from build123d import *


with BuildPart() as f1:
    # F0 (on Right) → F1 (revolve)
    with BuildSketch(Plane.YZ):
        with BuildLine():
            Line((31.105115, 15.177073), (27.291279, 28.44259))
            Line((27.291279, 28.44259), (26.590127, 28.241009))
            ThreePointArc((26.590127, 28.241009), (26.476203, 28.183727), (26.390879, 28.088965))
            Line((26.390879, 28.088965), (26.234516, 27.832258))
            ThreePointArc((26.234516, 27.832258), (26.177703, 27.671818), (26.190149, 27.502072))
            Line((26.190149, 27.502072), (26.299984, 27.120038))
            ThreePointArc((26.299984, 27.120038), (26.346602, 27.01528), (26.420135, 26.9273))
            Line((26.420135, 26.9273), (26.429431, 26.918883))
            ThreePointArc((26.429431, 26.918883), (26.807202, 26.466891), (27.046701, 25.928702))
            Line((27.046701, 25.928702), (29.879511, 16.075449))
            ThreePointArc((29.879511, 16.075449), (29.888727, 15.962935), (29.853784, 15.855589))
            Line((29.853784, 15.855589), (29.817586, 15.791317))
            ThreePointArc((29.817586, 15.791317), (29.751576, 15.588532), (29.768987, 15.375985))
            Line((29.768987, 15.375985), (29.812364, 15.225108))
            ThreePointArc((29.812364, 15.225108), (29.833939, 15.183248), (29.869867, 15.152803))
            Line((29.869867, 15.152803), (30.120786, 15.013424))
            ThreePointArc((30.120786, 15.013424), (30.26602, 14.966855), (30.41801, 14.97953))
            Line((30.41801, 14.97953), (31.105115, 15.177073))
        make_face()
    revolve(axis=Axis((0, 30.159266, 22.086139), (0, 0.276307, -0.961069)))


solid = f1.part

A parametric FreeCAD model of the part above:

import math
import FreeCAD as App
import Part
import Sketcher

V = App.Vector

doc = App.newDocument("Part")
body = doc.addObject("PartDesign::Body", "Body")

sketch1 = body.newObject("Sketcher::SketchObject", "Sketch")
sketch1.AttachmentSupport = (doc.getObject("YZ_Plane"), [""])
sketch1.MapMode = "FlatFace"
sketch1.addGeometry(Part.LineSegment(V(31.105115, 15.177073, 0), V(27.291279, 28.44259, 0)), False)
sketch1.addGeometry(Part.LineSegment(V(27.291279, 28.44259, 0), V(26.590127, 28.241009, 0)), False)
sketch1.addGeometry(Part.ArcOfCircle(Part.Circle(V(26.685425, 27.909549, 0), V(0, 0, 1), 0.344888), math.radians(106.040489), math.radians(148.653235)), False)
sketch1.addGeometry(Part.LineSegment(V(26.390879, 28.088965, 0), V(26.234516, 27.832258, 0)), False)
sketch1.addGeometry(Part.ArcOfCircle(Part.Circle(V(26.588551, 27.616613, 0), V(0, 0, 1), 0.41454), math.radians(148.654089), math.radians(196.039953)), False)
sketch1.addGeometry(Part.LineSegment(V(26.190149, 27.502072, 0), V(26.299984, 27.120038, 0)), False)
sketch1.addGeometry(Part.ArcOfCircle(Part.Circle(V(26.698383, 27.234576, 0), V(0, 0, 1), 0.414536), math.radians(-163.960223), math.radians(-132.16175)), False)
sketch1.addGeometry(Part.LineSegment(V(26.420135, 26.9273, 0), V(26.429431, 26.918883, 0)), False)
sketch1.addGeometry(Part.ArcOfCircle(Part.Circle(V(24.999932, 25.340255, 0), V(0, 0, 1), 2.129679), math.radians(16.039959), math.radians(47.838132)), False)
sketch1.addGeometry(Part.LineSegment(V(27.046701, 25.928702, 0), V(29.879511, 16.075449, 0)), False)
sketch1.addGeometry(Part.ArcOfCircle(Part.Circle(V(29.604027, 15.99625, 0), V(0, 0, 1), 0.286643), math.radians(-29.387743), math.radians(16.039472)), False)
sketch1.addGeometry(Part.LineSegment(V(29.853784, 15.855589, 0), V(29.817586, 15.791317, 0)), False)
sketch1.addGeometry(Part.ArcOfCircle(Part.Circle(V(30.289389, 15.525601, 0), V(0, 0, 1), 0.541482), math.radians(150.612088), math.radians(196.039975)), False)
sketch1.addGeometry(Part.LineSegment(V(29.768987, 15.375985, 0), V(29.812364, 15.225108, 0)), False)
sketch1.addGeometry(Part.ArcOfCircle(Part.Circle(V(29.928588, 15.258521, 0), V(0, 0, 1), 0.120931), math.radians(-163.960791), math.radians(-119.049881)), False)
sketch1.addGeometry(Part.LineSegment(V(29.869867, 15.152803, 0), V(30.120786, 15.013424, 0)), False)
sketch1.addGeometry(Part.ArcOfCircle(Part.Circle(V(30.31022, 15.354455, 0), V(0, 0, 1), 0.390112), math.radians(-119.051054), math.radians(-73.960213)), False)
sketch1.addGeometry(Part.LineSegment(V(30.41801, 14.97953, 0), V(31.105115, 15.177073, 0)), False)
sketch1.addGeometry(Part.LineSegment(V(28.25235, 28.718898, 0), V(32.066182, 15.453379, 0)), True)
sketch1.addConstraint(Sketcher.Constraint("Coincident", 0, 2, 1, 1))
sketch1.addConstraint(Sketcher.Constraint("Coincident", 1, 2, 2, 1))
sketch1.addConstraint(Sketcher.Constraint("Coincident", 2, 2, 3, 1))
sketch1.addConstraint(Sketcher.Constraint("Coincident", 3, 2, 4, 1))
sketch1.addConstraint(Sketcher.Constraint("Coincident", 4, 2, 5, 1))
sketch1.addConstraint(Sketcher.Constraint("Coincident", 5, 2, 6, 1))
sketch1.addConstraint(Sketcher.Constraint("Coincident", 6, 2, 7, 1))
sketch1.addConstraint(Sketcher.Constraint("Coincident", 7, 2, 8, 2))
sketch1.addConstraint(Sketcher.Constraint("Coincident", 8, 1, 9, 1))
sketch1.addConstraint(Sketcher.Constraint("Coincident", 9, 2, 10, 2))
sketch1.addConstraint(Sketcher.Constraint("Coincident", 10, 1, 11, 1))
sketch1.addConstraint(Sketcher.Constraint("Coincident", 11, 2, 12, 1))
sketch1.addConstraint(Sketcher.Constraint("Coincident", 12, 2, 13, 1))
sketch1.addConstraint(Sketcher.Constraint("Coincident", 13, 2, 14, 1))
sketch1.addConstraint(Sketcher.Constraint("Coincident", 14, 2, 15, 1))
sketch1.addConstraint(Sketcher.Constraint("Coincident", 15, 2, 16, 1))
sketch1.addConstraint(Sketcher.Constraint("Coincident", 16, 2, 17, 1))
sketch1.addConstraint(Sketcher.Constraint("Coincident", 17, 2, 0, 1))
sketch1.addConstraint(Sketcher.Constraint("Radius", 2, 0.344888))
sketch1.addConstraint(Sketcher.Constraint("Radius", 4, 0.41454))
sketch1.addConstraint(Sketcher.Constraint("Radius", 8, 2.129679))
sketch1.addConstraint(Sketcher.Constraint("Radius", 14, 0.120931))
sketch1.addConstraint(Sketcher.Constraint("Radius", 6, 0.414536))
sketch1.addConstraint(Sketcher.Constraint("Radius", 10, 0.286643))
sketch1.addConstraint(Sketcher.Constraint("Radius", 12, 0.541482))
sketch1.addConstraint(Sketcher.Constraint("Radius", 16, 0.390112))
sketch1.addConstraint(Sketcher.Constraint("DistanceX", 11, 2, 14, 3, 0.111002))
sketch1.addConstraint(Sketcher.Constraint("DistanceY", -1, 1, 12, 3, 15.525601))
sketch1.addConstraint(Sketcher.Constraint("DistanceY", -1, 1, 6, 2, 26.9273))
sketch1.addConstraint(Sketcher.Constraint("DistanceX", -1, 1, 8, 1, 27.046701))
sketch1.addConstraint(Sketcher.Constraint("DistanceY", -1, 1, 8, 1, 25.928702))
sketch1.addConstraint(Sketcher.Constraint("DistanceX", 2, 3, 10, 3, 2.918601))
sketch1.addConstraint(Sketcher.Constraint("DistanceY", 10, 3, 2, 3, 11.913299))
sketch1.addConstraint(Sketcher.Constraint("DistanceX", 14, 3, 12, 3, 0.360801))
sketch1.addConstraint(Sketcher.Constraint("DistanceY", 16, 3, 8, 3, 9.9858))
sketch1.addConstraint(Sketcher.Constraint("DistanceX", 1, 2, 2, 3, 0.095298))
sketch1.addConstraint(Sketcher.Constraint("DistanceX", 2, 2, 0, 2, 0.9004))
sketch1.addConstraint(Sketcher.Constraint("DistanceX", 4, 2, 4, 3, 0.398402))
sketch1.addConstraint(Sketcher.Constraint("DistanceX", 5, 2, 6, 3, 0.398399))
sketch1.addConstraint(Sketcher.Constraint("DistanceY", 10, 3, 9, 2, 0.079199))
sketch1.addConstraint(Sketcher.Constraint("DistanceX", 11, 2, 10, 1, 0.036198))
sketch1.addConstraint(Sketcher.Constraint("DistanceX", 12, 2, 14, 3, 0.159601))
sketch1.addConstraint(Sketcher.Constraint("DistanceX", 14, 3, 15, 2, 0.192198))
sketch1.addConstraint(Sketcher.Constraint("DistanceX", 4, 3, 18, 1, 1.663799))
sketch1.addConstraint(Sketcher.Constraint("Distance", 3, 0.300579))
sketch1.addConstraint(Sketcher.Constraint("Distance", 5, 0.397509))
sketch1.addConstraint(Sketcher.Constraint("Distance", 7, 0.01254))
sketch1.addConstraint(Sketcher.Constraint("Distance", 13, 0.156989))
sketch1.addConstraint(Sketcher.Constraint("Distance", 15, 0.287031))
sketch1.addConstraint(Sketcher.Constraint("Distance", 17, 0.714938))
sketch1.addConstraint(Sketcher.Constraint("DistanceY", -1, 1, 2, 3, 27.909549))
sketch1.addConstraint(Sketcher.Constraint("DistanceX", -1, 1, 4, 3, 26.588551))
sketch1.addConstraint(Sketcher.Constraint("DistanceX", -1, 1, 12, 3, 30.289389))
sketch1.addConstraint(Sketcher.Constraint("DistanceY", -1, 1, 14, 3, 15.258521))
sketch1.addConstraint(Sketcher.Constraint("DistanceX", -1, 1, 16, 3, 30.31022))
sketch1.addConstraint(Sketcher.Constraint("DistanceX", -1, 1, 0, 2, 27.291279))
sketch1.addConstraint(Sketcher.Constraint("DistanceY", -1, 1, 0, 2, 28.44259))
sketch1.addConstraint(Sketcher.Constraint("DistanceY", -1, 1, 5, 2, 27.120038))
sketch1.addConstraint(Sketcher.Constraint("DistanceX", -1, 1, 7, 2, 26.429431))
sketch1.addConstraint(Sketcher.Constraint("DistanceX", -1, 1, 9, 2, 29.879511))
sketch1.addConstraint(Sketcher.Constraint("DistanceX", -1, 1, 16, 2, 30.41801))
sketch1.addConstraint(Sketcher.Constraint("DistanceY", -1, 1, 16, 2, 14.97953))
sketch1.addConstraint(Sketcher.Constraint("DistanceY", -1, 1, 18, 2, 15.453379))
sketch1.addConstraint(Sketcher.Constraint("DistanceX", 15, 2, 17, 2, 0.984329))
sketch1.addConstraint(Sketcher.Constraint("DistanceY", 1, 2, 18, 1, 0.477889))
sketch1.addConstraint(Sketcher.Constraint("Distance", 18, 13.802873))
revolution = body.newObject("PartDesign::Revolution", "Revolution")
revolution.Profile = sketch1
revolution.ReferenceAxis = (sketch1, ["Axis0"])
revolution.Angle = 360

doc.recompute()
